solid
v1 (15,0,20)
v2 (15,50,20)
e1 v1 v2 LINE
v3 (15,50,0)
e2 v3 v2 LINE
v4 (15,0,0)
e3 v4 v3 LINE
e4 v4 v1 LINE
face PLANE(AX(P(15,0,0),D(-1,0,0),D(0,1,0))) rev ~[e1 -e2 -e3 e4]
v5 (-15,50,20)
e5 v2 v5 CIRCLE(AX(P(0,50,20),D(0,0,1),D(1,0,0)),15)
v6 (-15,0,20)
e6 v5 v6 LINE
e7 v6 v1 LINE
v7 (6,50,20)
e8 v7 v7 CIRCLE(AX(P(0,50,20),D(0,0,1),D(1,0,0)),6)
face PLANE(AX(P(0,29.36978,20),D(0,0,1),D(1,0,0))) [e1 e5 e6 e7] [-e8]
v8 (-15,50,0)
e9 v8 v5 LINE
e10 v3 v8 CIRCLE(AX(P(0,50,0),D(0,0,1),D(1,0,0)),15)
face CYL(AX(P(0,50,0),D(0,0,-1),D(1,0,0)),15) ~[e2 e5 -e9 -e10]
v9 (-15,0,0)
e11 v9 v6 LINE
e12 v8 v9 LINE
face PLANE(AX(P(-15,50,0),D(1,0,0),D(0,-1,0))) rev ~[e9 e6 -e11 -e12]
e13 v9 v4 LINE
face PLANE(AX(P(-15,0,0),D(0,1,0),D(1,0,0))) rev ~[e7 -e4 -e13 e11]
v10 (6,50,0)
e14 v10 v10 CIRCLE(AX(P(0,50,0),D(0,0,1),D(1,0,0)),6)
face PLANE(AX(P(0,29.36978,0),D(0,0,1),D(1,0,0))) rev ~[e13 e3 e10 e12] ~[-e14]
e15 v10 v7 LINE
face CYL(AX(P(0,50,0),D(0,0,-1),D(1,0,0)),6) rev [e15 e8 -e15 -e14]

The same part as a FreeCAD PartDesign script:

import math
import FreeCAD as App
import Part
import Sketcher
from FreeCAD import Vector
Q = App.Units.Quantity

doc = App.newDocument("Part")
body = doc.addObject("PartDesign::Body", "Body")

# Sketch on XY plane
sketch1 = doc.addObject("Sketcher::SketchObject", "Sketch")
body.addObject(sketch1)
sketch1.AttachmentSupport = (doc.XY_Plane, [""])
sketch1.MapMode = "FlatFace"
sketch1.addGeometry(Part.LineSegment(Vector(-15, 50, 0), Vector(-15, 0, 0)), False)
sketch1.addGeometry(Part.LineSegment(Vector(-15, 0, 0), Vector(15, 0, 0)), False)
sketch1.addGeometry(Part.LineSegment(Vector(15, 0, 0), Vector(15, 50, 0)), False)
sketch1.addGeometry(Part.ArcOfCircle(Part.Circle(Vector(0, 50, 0), Vector(0, 0, 1), 15), math.radians(0), math.radians(180)), False)
sketch1.addGeometry(Part.Circle(Vector(0, 50, 0), Vector(0, 0, 1), 6), False)
sketch1.addConstraint(Sketcher.Constraint("Coincident", 0, 2, 1, 1))
sketch1.addConstraint(Sketcher.Constraint("Coincident", 1, 2, 2, 1))
sketch1.addConstraint(Sketcher.Constraint("Tangent", 2, 2, 3, 1))
sketch1.addConstraint(Sketcher.Constraint("Tangent", 3, 2, 0, 1))
sketch1.addConstraint(Sketcher.Constraint("Vertical", 0))
sketch1.addConstraint(Sketcher.Constraint("Horizontal", 1))
sketch1.addConstraint(Sketcher.Constraint("Vertical", 2))
sketch1.addConstraint(Sketcher.Constraint("Coincident", 4, 3, 3, 3))
sketch1.addConstraint(Sketcher.Constraint("Symmetric", 0, 2, 1, 2, -1, 1))
sketch1.addConstraint(Sketcher.Constraint("Diameter", 4, Q("12 mm")))
sketch1.addConstraint(Sketcher.Constraint("Radius", 3, Q("15 mm")))
sketch1.addConstraint(Sketcher.Constraint("DistanceY", 0, 2, 0, 1, Q("50 mm")))
pad1 = doc.addObject("PartDesign::Pad", "Pad")
body.addObject(pad1)
pad1.Profile = sketch1
pad1.Length = 20

doc.recompute()
